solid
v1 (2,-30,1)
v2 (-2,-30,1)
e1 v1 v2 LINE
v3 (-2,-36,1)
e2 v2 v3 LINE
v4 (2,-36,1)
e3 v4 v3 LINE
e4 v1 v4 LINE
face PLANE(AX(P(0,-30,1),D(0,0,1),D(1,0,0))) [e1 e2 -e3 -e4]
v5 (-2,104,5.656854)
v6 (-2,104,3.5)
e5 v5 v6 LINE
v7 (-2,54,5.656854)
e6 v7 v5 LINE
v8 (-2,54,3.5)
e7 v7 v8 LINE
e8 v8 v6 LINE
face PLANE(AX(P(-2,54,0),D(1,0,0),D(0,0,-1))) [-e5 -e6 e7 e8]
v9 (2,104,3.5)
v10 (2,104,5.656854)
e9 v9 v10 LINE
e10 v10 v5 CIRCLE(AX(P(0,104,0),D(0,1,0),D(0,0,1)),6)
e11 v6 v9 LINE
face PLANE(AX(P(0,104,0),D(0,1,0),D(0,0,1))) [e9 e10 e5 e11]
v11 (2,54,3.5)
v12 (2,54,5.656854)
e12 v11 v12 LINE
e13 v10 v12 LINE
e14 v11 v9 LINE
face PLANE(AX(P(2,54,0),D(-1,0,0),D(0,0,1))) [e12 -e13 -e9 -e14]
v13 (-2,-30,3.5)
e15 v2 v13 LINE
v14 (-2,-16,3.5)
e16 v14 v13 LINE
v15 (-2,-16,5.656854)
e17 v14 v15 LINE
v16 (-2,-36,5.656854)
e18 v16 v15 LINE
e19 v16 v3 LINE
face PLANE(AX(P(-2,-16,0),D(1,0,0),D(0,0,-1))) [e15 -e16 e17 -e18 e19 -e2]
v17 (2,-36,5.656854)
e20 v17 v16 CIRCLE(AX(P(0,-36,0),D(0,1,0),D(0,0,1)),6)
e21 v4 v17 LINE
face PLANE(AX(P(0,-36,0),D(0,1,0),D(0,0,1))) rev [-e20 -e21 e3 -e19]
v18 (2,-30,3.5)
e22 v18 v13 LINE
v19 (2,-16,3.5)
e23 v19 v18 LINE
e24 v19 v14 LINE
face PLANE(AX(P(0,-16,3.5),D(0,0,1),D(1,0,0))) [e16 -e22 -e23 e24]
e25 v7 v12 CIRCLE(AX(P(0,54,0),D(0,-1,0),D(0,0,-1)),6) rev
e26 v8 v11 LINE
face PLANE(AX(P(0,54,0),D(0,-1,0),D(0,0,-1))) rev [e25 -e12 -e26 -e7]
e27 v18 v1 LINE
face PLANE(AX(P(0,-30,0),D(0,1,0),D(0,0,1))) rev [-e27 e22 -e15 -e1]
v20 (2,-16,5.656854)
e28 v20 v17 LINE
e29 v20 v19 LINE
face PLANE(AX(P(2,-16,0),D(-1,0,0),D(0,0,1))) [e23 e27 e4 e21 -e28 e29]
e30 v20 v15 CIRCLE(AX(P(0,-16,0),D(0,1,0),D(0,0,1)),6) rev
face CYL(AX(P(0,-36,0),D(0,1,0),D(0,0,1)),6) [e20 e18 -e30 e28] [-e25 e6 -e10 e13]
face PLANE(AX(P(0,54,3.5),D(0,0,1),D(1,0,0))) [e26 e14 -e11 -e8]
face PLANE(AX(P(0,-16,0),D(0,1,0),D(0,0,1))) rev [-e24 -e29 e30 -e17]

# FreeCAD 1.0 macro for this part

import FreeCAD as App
import Part
import Sketcher

V = App.Vector

doc = App.newDocument("Part")
body = doc.addObject("PartDesign::Body", "Body")

sketch1 = body.newObject("Sketcher::SketchObject", "Sketch")
sketch1.AttachmentSupport = (doc.getObject("XZ_Plane"), [""])
sketch1.MapMode = "FlatFace"
sketch1.addGeometry(Part.Circle(V(0, 0, 0), V(0, 0, 1), 6), False)
sketch1.addConstraint([
    Sketcher.Constraint("Coincident", 0, 3, -1, 1),
    Sketcher.Constraint("Diameter", 0, 12.0),
])
pad1 = body.newObject("PartDesign::Pad", "Pad")
pad1.Profile = sketch1
pad1.Type = "TwoLengths"
pad1.Length = 104
pad1.Length2 = 36
pad1.Reversed = True

sketch2 = body.newObject("Sketcher::SketchObject", "Sketch001")
sketch2.AttachmentSupport = (doc.getObject("XZ_Plane"), [""])
sketch2.MapMode = "FlatFace"
sketch2.AttachmentOffset = App.Placement(V(0, 0, 36), App.Rotation())
sketch2.addGeometry([
    Part.LineSegment(V(-2, 3.5, 0), V(-2, 8.5, 0)),
    Part.LineSegment(V(-2, 8.5, 0), V(2, 8.5, 0)),
    Part.LineSegment(V(2, 8.5, 0), V(2, 3.5, 0)),
    Part.LineSegment(V(2, 3.5, 0), V(-2, 3.5, 0)),
], False)
sketch2.addConstraint([
    Sketcher.Constraint("Coincident", 0, 2, 1, 1),
    Sketcher.Constraint("Coincident", 1, 2, 2, 1),
    Sketcher.Constraint("Coincident", 2, 2, 3, 1),
    Sketcher.Constraint("Coincident", 3, 2, 0, 1),
    Sketcher.Constraint("Vertical", 0),
    Sketcher.Constraint("Horizontal", 1),
    Sketcher.Constraint("Vertical", 2),
    Sketcher.Constraint("Horizontal", 3),
    Sketcher.Constraint("DistanceX", 1, 1, 1, 2, 4.0),
    Sketcher.Constraint("DistanceY", 0, 1, 0, 2, 5.0),
    Sketcher.Constraint("DistanceX", 0, 2, -1, 1, 2.0),
    Sketcher.Constraint("DistanceY", -1, 1, 0, 2, 8.5),
])
pocket1 = body.newObject("PartDesign::Pocket", "Pocket")
pocket1.Profile = sketch2
pocket1.Type = "TwoLengths"
pocket1.Length = 20
pocket1.Length2 = 0.0001

sketch3 = body.newObject("Sketcher::SketchObject", "Sketch002")
sketch3.AttachmentSupport = (doc.getObject("XZ_Plane"), [""])
sketch3.MapMode = "FlatFace"
sketch3.AttachmentOffset = App.Placement(V(0, 0, -104), App.Rotation())
sketch3.addGeometry([
    Part.LineSegment(V(-2, 3.5, 0), V(-2, 8.5, 0)),
    Part.LineSegment(V(-2, 8.5, 0), V(2, 8.5, 0)),
    Part.LineSegment(V(2, 8.5, 0), V(2, 3.5, 0)),
    Part.LineSegment(V(2, 3.5, 0), V(-2, 3.5, 0)),
], False)
sketch3.addConstraint([
    Sketcher.Constraint("Coincident", 0, 2, 1, 1),
    Sketcher.Constraint("Coincident", 1, 2, 2, 1),
    Sketcher.Constraint("Coincident", 2, 2, 3, 1),
    Sketcher.Constraint("Coincident", 3, 2, 0, 1),
    Sketcher.Constraint("Vertical", 0),
    Sketcher.Constraint("Horizontal", 1),
    Sketcher.Constraint("Vertical", 2),
    Sketcher.Constraint("Horizontal", 3),
    Sketcher.Constraint("DistanceX", 1, 1, 1, 2, 4.0),
    Sketcher.Constraint("DistanceY", 0, 1, 0, 2, 5.0),
    Sketcher.Constraint("DistanceX", 0, 2, -1, 1, 2.0),
    Sketcher.Constraint("DistanceY", -1, 1, 0, 2, 8.5),
])
pocket2 = body.newObject("PartDesign::Pocket", "Pocket001")
pocket2.Profile = sketch3
pocket2.Length = 50
pocket2.Reversed = True

sketch4 = body.newObject("Sketcher::SketchObject", "Sketch003")
sketch4.AttachmentSupport = (doc.getObject("XZ_Plane"), [""])
sketch4.MapMode = "FlatFace"
sketch4.AttachmentOffset = App.Placement(V(0, 0, 36), App.Rotation())
sketch4.addGeometry([
    Part.LineSegment(V(-2, 1, 0), V(-2, 11, 0)),
    Part.LineSegment(V(-2, 11, 0), V(2, 11, 0)),
    Part.LineSegment(V(2, 11, 0), V(2, 1, 0)),
    Part.LineSegment(V(2, 1, 0), V(-2, 1, 0)),
], False)
sketch4.addConstraint([
    Sketcher.Constraint("Coincident", 0, 2, 1, 1),
    Sketcher.Constraint("Coincident", 1, 2, 2, 1),
    Sketcher.Constraint("Coincident", 2, 2, 3, 1),
    Sketcher.Constraint("Coincident", 3, 2, 0, 1),
    Sketcher.Constraint("Vertical", 0),
    Sketcher.Constraint("Horizontal", 1),
    Sketcher.Constraint("Vertical", 2),
    Sketcher.Constraint("Horizontal", 3),
    Sketcher.Constraint("DistanceX", 1, 1, 1, 2, 4.0),
    Sketcher.Constraint("DistanceY", 0, 1, 0, 2, 10.0),
    Sketcher.Constraint("DistanceX", 0, 2, -1, 1, 2.0),
    Sketcher.Constraint("DistanceY", -1, 1, 0, 2, 11.0),
])
pocket3 = body.newObject("PartDesign::Pocket", "Pocket002")
pocket3.Profile = sketch4
pocket3.Length = 6

doc.recompute()
